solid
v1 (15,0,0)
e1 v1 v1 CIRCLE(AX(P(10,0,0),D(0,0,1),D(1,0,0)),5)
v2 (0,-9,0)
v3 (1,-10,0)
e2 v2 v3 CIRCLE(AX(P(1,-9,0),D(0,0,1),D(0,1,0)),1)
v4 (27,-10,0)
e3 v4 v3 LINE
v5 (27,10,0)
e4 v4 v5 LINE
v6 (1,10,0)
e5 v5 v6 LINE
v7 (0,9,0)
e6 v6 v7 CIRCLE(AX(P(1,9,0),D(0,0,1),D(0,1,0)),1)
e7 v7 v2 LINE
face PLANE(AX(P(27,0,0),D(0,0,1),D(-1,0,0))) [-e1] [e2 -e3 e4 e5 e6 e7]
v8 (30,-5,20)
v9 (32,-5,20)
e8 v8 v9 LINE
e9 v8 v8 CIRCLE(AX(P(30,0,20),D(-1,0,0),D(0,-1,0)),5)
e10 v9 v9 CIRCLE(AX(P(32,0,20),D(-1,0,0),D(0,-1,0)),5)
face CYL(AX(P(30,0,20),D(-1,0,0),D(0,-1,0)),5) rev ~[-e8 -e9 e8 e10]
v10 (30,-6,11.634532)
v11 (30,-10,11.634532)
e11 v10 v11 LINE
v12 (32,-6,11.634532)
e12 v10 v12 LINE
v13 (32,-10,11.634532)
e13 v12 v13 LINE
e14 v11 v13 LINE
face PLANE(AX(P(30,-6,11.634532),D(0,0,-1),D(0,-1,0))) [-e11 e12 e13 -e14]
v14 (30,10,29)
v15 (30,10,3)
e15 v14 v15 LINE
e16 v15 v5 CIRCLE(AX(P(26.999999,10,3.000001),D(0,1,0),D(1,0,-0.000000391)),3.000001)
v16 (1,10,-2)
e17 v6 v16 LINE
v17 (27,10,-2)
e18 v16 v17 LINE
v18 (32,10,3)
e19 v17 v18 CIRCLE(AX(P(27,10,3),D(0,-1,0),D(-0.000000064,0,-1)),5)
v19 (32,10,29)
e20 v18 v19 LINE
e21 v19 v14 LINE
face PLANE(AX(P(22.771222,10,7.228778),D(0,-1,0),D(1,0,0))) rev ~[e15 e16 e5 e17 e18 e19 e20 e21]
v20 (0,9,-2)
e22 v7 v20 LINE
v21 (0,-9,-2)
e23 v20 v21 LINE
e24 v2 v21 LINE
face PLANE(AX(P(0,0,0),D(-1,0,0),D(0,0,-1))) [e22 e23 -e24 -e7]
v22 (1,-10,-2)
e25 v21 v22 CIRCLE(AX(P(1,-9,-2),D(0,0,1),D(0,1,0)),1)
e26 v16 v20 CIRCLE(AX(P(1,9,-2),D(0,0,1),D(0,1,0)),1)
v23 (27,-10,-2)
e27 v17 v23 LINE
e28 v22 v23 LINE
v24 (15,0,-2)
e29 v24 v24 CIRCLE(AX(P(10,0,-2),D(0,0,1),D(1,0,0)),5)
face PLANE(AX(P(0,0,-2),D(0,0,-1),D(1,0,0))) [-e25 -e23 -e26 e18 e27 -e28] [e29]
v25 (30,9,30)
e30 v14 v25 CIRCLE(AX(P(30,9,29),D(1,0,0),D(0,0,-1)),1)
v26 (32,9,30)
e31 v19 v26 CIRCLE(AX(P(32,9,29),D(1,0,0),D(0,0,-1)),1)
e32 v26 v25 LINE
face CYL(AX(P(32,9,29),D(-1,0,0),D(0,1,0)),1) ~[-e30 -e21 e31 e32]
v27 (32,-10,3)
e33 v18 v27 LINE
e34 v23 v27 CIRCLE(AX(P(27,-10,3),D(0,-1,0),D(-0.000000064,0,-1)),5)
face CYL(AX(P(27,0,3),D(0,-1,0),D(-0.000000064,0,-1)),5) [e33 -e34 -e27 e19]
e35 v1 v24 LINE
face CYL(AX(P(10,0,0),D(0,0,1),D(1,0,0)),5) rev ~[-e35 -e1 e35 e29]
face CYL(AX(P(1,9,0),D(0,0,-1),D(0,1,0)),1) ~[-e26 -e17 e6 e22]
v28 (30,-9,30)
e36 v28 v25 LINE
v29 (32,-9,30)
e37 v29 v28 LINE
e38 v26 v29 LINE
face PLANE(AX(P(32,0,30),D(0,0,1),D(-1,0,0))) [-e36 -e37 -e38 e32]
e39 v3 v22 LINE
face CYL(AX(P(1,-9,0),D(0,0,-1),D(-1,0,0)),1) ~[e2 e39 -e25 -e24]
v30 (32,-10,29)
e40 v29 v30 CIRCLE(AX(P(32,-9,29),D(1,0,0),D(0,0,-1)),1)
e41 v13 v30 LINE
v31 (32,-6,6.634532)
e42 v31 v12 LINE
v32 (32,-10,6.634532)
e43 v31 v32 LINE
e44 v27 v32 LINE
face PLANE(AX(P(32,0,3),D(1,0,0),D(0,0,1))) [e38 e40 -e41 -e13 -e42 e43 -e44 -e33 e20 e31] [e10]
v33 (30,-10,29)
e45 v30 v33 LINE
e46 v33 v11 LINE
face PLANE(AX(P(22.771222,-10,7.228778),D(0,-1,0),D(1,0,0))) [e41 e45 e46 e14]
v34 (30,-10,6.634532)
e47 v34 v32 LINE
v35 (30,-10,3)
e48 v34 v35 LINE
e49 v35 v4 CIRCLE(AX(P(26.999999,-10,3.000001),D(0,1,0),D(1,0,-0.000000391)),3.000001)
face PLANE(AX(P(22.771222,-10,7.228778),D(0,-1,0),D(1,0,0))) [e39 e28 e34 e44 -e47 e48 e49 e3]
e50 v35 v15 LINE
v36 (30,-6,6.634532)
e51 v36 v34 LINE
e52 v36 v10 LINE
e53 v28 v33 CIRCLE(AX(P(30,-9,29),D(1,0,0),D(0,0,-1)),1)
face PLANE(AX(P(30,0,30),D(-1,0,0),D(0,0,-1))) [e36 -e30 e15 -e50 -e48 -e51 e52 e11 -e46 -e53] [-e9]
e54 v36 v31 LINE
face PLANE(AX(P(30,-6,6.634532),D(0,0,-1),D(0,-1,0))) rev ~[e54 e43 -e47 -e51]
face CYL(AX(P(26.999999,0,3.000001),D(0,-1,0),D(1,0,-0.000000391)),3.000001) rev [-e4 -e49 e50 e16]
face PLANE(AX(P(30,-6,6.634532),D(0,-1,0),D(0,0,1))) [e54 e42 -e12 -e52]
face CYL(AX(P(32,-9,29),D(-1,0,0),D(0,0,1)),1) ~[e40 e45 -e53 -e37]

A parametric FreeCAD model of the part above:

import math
import FreeCAD as App
import Part
import Sketcher

V = App.Vector
Q = App.Units.Quantity


def edges_at(feature, points):
    """Names of the edges that pass closest to the given points."""
    edges = feature.Shape.Edges
    near = lambda p: min(range(len(edges)), key=lambda i: edges[i].distToShape(Part.Vertex(*p))[0])
    return sorted({f"Edge{near(p) + 1}" for p in points})


def add_polygon(sketch, points):
    """Adds a closed chain of lines whose ends are joined by coincident constraints."""
    first, n = sketch.GeometryCount, len(points)
    for a, b in zip(points, points[1:] + points[:1]):
        sketch.addGeometry(Part.LineSegment(App.Vector(*a, 0), App.Vector(*b, 0)), False)
    for i in range(n):
        sketch.addConstraint(Sketcher.Constraint("Coincident", first + i, 2, first + (i + 1) % n, 1))

doc = App.newDocument("Part")
params = doc.addObject("Spreadsheet::Sheet", "Params")
for row, (alias, value) in enumerate([
    ("sketch1_radius", "5 mm"),
    ("sketch1_radius2", "3.000001 mm"),
    ("sketch1_width", "27 mm"),
    ("pad1_length", "20 mm"),
    ("sketch2_diameter", "10 mm"),
    ("sketch3_width", "4 mm"),
    ("sketch3_height", "5 mm"),
    ("sketch4_diameter", "10 mm"),
    ("fillet_radius", "1 mm"),
], start=1):
    params.set(f"A{row}", alias)
    params.set(f"B{row}", "=" + value)
    params.setAlias(f"B{row}", alias)

body = doc.addObject("PartDesign::Body", "Body")

# Sketch on XZ plane
sketch1 = body.newObject("Sketcher::SketchObject", "Sketch")
sketch1.AttachmentSupport = (doc.getObject("XZ_Plane"), [""])
sketch1.MapMode = "FlatFace"
sketch1.addGeometry([
    Part.LineSegment(V(27, 0, 0), V(0, 0, 0)),  # 0
    Part.LineSegment(V(0, 0, 0), V(0, -2, 0)),  # 1
    Part.LineSegment(V(0, -2, 0), V(27, -2, 0)),  # 2
    Part.ArcOfCircle(Part.Circle(V(27, 3, 0), V(0, 0, 1), 5), math.radians(-90), math.radians(0)),  # 3
    Part.LineSegment(V(32, 3, 0), V(32, 30, 0)),  # 4
    Part.LineSegment(V(32, 30, 0), V(30, 30, 0)),  # 5
    Part.LineSegment(V(30, 30, 0), V(30, 3, 0)),  # 6
    Part.ArcOfCircle(Part.Circle(V(27, 3, 0), V(0, 0, 1), 3), math.radians(-90), math.radians(0)),  # 7
], False)
sketch1.addConstraint([
    Sketcher.Constraint("Coincident", 0, 2, 1, 1),
    Sketcher.Constraint("Coincident", 1, 2, 2, 1),
    Sketcher.Constraint("Tangent", 2, 2, 3, 1),
    Sketcher.Constraint("Tangent", 3, 2, 4, 1),
    Sketcher.Constraint("Coincident", 4, 2, 5, 1),
    Sketcher.Constraint("Coincident", 5, 2, 6, 1),
    Sketcher.Constraint("Tangent", 6, 2, 7, 2),
    Sketcher.Constraint("Tangent", 7, 1, 0, 1),
    Sketcher.Constraint("Horizontal", 0),
    Sketcher.Constraint("Vertical", 1),
    Sketcher.Constraint("Horizontal", 2),
    Sketcher.Constraint("Vertical", 4),
    Sketcher.Constraint("Horizontal", 5),
    Sketcher.Constraint("Vertical", 6),
    Sketcher.Constraint("Coincident", 0, 2, -1, 1),
    Sketcher.Constraint("Coincident", 7, 3, 3, 3),
    Sketcher.Constraint("Equal", 2, 4),
    Sketcher.Constraint("Radius", 3, Q("5 mm")),
    Sketcher.Constraint("Radius", 7, Q("3.000001 mm")),
    Sketcher.Constraint("DistanceX", 0, 2, 0, 1, Q("27 mm")),
])
sketch1.setExpression("Constraints[17]", "Params.sketch1_radius")
sketch1.setExpression("Constraints[18]", "Params.sketch1_radius2")
sketch1.setExpression("Constraints[19]", "Params.sketch1_width")
pad1 = body.newObject("PartDesign::Pad", "Pad")
pad1.Profile = sketch1
pad1.setExpression("Length", "Params.pad1_length")
pad1.Midplane = True

# Sketch on YZ plane
sketch2 = body.newObject("Sketcher::SketchObject", "Sketch001")
sketch2.AttachmentSupport = (doc.getObject("YZ_Plane"), [""])
sketch2.MapMode = "FlatFace"
sketch2.AttachmentOffset = App.Placement(V(0, 0, 30), App.Rotation())
sketch2.addGeometry(Part.Circle(V(0, 20, 0), V(0, 0, 1), 5), False)
sketch2.addConstraint([
    Sketcher.Constraint("PointOnObject", 0, 3, -2),
    Sketcher.Constraint("Diameter", 0, Q("10 mm")),
    Sketcher.Constraint("DistanceY", -1, 1, 0, 3, Q("20 mm")),
])
sketch2.setExpression("Constraints[1]", "Params.sketch2_diameter")
pocket1 = body.newObject("PartDesign::Pocket", "Pocket")
pocket1.Profile = sketch2
pocket1.Type = "ThroughAll"
pocket1.Reversed = True

# Sketch on YZ plane
sketch3 = body.newObject("Sketcher::SketchObject", "Sketch002")
sketch3.AttachmentSupport = (doc.getObject("YZ_Plane"), [""])
sketch3.MapMode = "FlatFace"
sketch3.AttachmentOffset = App.Placement(V(0, 0, 30), App.Rotation())
add_polygon(sketch3, [(-6, 11.6), (-6, 6.6), (-10, 6.6), (-10, 11.6)])  # lines 0-3
sketch3.addConstraint([
    Sketcher.Constraint("Vertical", 0),
    Sketcher.Constraint("Horizontal", 1),
    Sketcher.Constraint("Vertical", 2),
    Sketcher.Constraint("Horizontal", 3),
    Sketcher.Constraint("DistanceX", 1, 2, 1, 1, Q("4 mm")),
    Sketcher.Constraint("DistanceY", 0, 2, 0, 1, Q("5 mm")),
    Sketcher.Constraint("DistanceX", 0, 2, -1, 1, Q("6 mm")),
    Sketcher.Constraint("DistanceY", -1, 1, 0, 2, Q("6.634532 mm")),
])
sketch3.setExpression("Constraints[8]", "Params.sketch3_width")
sketch3.setExpression("Constraints[9]", "Params.sketch3_height")
pocket2 = body.newObject("PartDesign::Pocket", "Pocket001")
pocket2.Profile = sketch3
pocket2.Type = "ThroughAll"
pocket2.Reversed = True

# Sketch on XY plane
sketch4 = body.newObject("Sketcher::SketchObject", "Sketch003")
sketch4.AttachmentSupport = (doc.getObject("XY_Plane"), [""])
sketch4.MapMode = "FlatFace"
sketch4.addGeometry(Part.Circle(V(10, 0, 0), V(0, 0, 1), 5), False)
sketch4.addConstraint([
    Sketcher.Constraint("PointOnObject", 0, 3, -1),
    Sketcher.Constraint("Diameter", 0, Q("10 mm")),
    Sketcher.Constraint("DistanceX", -1, 1, 0, 3, Q("10 mm")),
])
sketch4.setExpression("Constraints[1]", "Params.sketch4_diameter")
pocket3 = body.newObject("PartDesign::Pocket", "Pocket002")
pocket3.Profile = sketch4
pocket3.Type = "ThroughAll"
doc.recompute()

fillet = body.newObject("PartDesign::Fillet", "Fillet")
fillet.Base = (pocket3, edges_at(pocket3, [
    (31, 10, 30),
    (31, -10, 30),
    (0, 10, -1),
    (0, -10, -1),
]))
fillet.setExpression("Radius", "Params.fillet_radius")

doc.recompute()
